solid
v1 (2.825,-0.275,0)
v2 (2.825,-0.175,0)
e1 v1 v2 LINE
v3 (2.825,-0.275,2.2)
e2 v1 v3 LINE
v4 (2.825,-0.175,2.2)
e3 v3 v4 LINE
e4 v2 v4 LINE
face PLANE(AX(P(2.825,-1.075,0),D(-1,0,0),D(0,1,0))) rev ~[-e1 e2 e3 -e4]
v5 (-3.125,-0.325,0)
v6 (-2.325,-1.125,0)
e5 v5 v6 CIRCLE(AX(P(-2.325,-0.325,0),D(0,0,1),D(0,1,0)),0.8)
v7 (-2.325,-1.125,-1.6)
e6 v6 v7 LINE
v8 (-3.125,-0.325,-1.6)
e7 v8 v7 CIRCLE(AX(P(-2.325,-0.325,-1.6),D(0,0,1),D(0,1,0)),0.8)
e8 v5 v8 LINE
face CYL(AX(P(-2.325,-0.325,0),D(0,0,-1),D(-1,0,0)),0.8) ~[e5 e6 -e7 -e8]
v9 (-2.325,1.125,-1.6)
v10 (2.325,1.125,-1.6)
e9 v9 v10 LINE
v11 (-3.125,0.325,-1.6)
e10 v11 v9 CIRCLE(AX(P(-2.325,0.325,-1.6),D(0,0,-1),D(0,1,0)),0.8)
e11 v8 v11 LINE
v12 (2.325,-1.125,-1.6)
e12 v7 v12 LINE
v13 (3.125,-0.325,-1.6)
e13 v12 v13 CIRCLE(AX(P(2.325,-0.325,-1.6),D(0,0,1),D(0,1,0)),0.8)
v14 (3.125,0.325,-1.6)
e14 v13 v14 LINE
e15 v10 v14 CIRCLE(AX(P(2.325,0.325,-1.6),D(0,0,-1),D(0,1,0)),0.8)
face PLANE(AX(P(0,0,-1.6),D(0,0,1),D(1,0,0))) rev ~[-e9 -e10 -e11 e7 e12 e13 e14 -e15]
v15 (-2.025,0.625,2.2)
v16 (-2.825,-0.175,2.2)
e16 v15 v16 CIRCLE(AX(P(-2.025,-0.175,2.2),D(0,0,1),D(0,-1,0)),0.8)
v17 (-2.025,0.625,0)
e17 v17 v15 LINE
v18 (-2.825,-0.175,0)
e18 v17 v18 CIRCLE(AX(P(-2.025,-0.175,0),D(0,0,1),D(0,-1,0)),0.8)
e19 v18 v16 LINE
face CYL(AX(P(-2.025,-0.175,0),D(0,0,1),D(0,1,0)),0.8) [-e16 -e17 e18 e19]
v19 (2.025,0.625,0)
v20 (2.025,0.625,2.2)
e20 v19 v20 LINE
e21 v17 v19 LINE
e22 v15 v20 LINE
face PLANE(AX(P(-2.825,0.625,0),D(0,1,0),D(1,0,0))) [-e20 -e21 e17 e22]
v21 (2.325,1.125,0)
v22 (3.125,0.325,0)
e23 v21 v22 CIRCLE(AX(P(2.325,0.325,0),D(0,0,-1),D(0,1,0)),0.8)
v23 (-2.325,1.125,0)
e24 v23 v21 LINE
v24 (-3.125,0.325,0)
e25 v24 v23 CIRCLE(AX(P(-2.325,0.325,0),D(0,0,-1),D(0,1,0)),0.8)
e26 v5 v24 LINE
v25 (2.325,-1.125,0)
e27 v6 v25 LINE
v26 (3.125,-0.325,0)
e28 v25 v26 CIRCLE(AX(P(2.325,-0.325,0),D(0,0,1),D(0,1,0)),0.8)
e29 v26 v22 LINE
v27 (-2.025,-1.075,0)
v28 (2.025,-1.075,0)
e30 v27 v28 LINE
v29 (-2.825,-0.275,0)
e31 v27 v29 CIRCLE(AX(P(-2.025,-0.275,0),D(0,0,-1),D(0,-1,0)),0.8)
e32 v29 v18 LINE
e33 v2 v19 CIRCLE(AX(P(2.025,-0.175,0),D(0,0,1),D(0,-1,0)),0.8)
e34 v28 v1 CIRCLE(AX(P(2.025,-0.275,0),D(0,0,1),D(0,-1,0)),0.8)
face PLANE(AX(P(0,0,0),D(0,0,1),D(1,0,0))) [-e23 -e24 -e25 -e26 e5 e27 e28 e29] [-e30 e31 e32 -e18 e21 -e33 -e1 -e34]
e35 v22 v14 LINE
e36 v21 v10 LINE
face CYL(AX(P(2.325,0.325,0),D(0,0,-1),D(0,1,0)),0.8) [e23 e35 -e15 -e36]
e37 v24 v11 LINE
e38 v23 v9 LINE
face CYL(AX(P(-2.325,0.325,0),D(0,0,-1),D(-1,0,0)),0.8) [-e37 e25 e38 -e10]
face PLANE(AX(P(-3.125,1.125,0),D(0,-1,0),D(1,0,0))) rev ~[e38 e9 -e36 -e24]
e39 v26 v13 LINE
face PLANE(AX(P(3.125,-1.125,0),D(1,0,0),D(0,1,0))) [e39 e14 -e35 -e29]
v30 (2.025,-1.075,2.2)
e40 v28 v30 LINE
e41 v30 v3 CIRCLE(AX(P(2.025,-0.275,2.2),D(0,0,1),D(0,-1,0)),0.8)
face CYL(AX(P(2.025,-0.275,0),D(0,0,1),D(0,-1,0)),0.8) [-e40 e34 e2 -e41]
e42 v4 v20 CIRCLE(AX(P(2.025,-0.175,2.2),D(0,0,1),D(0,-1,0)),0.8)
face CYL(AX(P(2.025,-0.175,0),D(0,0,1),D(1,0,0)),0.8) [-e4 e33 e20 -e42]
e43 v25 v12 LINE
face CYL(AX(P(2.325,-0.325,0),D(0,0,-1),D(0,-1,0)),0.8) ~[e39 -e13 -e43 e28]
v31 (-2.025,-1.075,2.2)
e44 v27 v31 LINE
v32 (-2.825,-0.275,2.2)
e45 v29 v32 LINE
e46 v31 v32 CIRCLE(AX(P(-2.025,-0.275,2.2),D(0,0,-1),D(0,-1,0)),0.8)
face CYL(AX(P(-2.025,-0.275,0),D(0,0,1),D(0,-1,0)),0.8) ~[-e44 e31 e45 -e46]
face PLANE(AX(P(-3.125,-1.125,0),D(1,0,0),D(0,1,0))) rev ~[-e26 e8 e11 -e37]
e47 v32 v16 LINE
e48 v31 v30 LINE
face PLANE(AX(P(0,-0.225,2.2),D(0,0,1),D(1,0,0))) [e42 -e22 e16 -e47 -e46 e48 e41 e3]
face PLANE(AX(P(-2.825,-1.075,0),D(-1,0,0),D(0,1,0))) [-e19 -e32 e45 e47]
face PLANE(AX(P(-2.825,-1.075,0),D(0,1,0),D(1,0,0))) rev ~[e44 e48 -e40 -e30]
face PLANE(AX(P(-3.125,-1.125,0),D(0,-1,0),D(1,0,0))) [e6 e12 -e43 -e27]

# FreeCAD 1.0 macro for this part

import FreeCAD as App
import Part
import Sketcher

V = App.Vector
Q = App.Units.Quantity


def edges_at(feature, points):
    """Names of the edges that pass closest to the given points."""
    edges = feature.Shape.Edges
    near = lambda p: min(range(len(edges)), key=lambda i: edges[i].distToShape(Part.Vertex(*p))[0])
    return sorted({f"Edge{near(p) + 1}" for p in points})

doc = App.newDocument("Part")
params = doc.addObject("Spreadsheet::Sheet", "Params")
for row, (alias, value) in enumerate([
    ("sketch1_height", "1.7 mm"),
    ("sketch1_width", "5.65 mm"),
    ("pad1_length", "2.2 mm"),
    ("sketch2_width", "6.25 mm"),
    ("sketch2_height", "2.25 mm"),
    ("pad2_length", "1.6 mm"),
    ("fillet_radius", "0.8 mm"),
], start=1):
    params.set(f"A{row}", alias)
    params.set(f"B{row}", "=" + value)
    params.setAlias(f"B{row}", alias)

body = doc.addObject("PartDesign::Body", "Body")

# Sketch on XY plane
sketch1 = body.newObject("Sketcher::SketchObject", "Sketch")
sketch1.AttachmentSupport = (doc.getObject("XY_Plane"), [""])
sketch1.MapMode = "FlatFace"
sketch1.addGeometry(Part.LineSegment(V(-2.8, 0.6, 0), V(-2.8, -1.1, 0)), False)
sketch1.addGeometry(Part.LineSegment(V(-2.8, -1.1, 0), V(2.8, -1.1, 0)), False)
sketch1.addGeometry(Part.LineSegment(V(2.8, -1.1, 0), V(2.8, 0.6, 0)), False)
sketch1.addGeometry(Part.LineSegment(V(2.8, 0.6, 0), V(-2.8, 0.6, 0)), False)
sketch1.addConstraint(Sketcher.Constraint("Coincident", 0, 2, 1, 1))
sketch1.addConstraint(Sketcher.Constraint("Coincident", 1, 2, 2, 1))
sketch1.addConstraint(Sketcher.Constraint("Coincident", 2, 2, 3, 1))
sketch1.addConstraint(Sketcher.Constraint("Coincident", 3, 2, 0, 1))
sketch1.addConstraint(Sketcher.Constraint("Vertical", 0))
sketch1.addConstraint(Sketcher.Constraint("Horizontal", 1))
sketch1.addConstraint(Sketcher.Constraint("Vertical", 2))
sketch1.addConstraint(Sketcher.Constraint("Horizontal", 3))
sketch1.addConstraint(Sketcher.Constraint("DistanceY", 0, 2, 0, 1, Q("1.7 mm")))
sketch1.addConstraint(Sketcher.Constraint("DistanceX", 1, 1, 1, 2, Q("5.65 mm")))
sketch1.addConstraint(Sketcher.Constraint("DistanceX", 0, 2, -1, 1, Q("2.825 mm")))
sketch1.addConstraint(Sketcher.Constraint("DistanceY", 0, 2, -1, 1, Q("1.075 mm")))
sketch1.setExpression("Constraints[8]", "Params.sketch1_height")
sketch1.setExpression("Constraints[9]", "Params.sketch1_width")
pad1 = body.newObject("PartDesign::Pad", "Pad")
pad1.Profile = sketch1
pad1.setExpression("Length", "Params.pad1_length")

# Sketch on XY plane
sketch2 = body.newObject("Sketcher::SketchObject", "Sketch001")
sketch2.AttachmentSupport = (doc.getObject("XY_Plane"), [""])
sketch2.MapMode = "FlatFace"
sketch2.addGeometry(Part.LineSegment(V(-3.1, 1.1, 0), V(-3.1, -1.1, 0)), False)
sketch2.addGeometry(Part.LineSegment(V(-3.1, -1.1, 0), V(3.1, -1.1, 0)), False)
sketch2.addGeometry(Part.LineSegment(V(3.1, -1.1, 0), V(3.1, 1.1, 0)), False)
sketch2.addGeometry(Part.LineSegment(V(3.1, 1.1, 0), V(-3.1, 1.1, 0)), False)
sketch2.addConstraint(Sketcher.Constraint("Coincident", 0, 2, 1, 1))
sketch2.addConstraint(Sketcher.Constraint("Coincident", 1, 2, 2, 1))
sketch2.addConstraint(Sketcher.Constraint("Coincident", 2, 2, 3, 1))
sketch2.addConstraint(Sketcher.Constraint("Coincident", 3, 2, 0, 1))
sketch2.addConstraint(Sketcher.Constraint("Vertical", 0))
sketch2.addConstraint(Sketcher.Constraint("Horizontal", 1))
sketch2.addConstraint(Sketcher.Constraint("Vertical", 2))
sketch2.addConstraint(Sketcher.Constraint("Horizontal", 3))
sketch2.addConstraint(Sketcher.Constraint("Symmetric", 0, 2, 2, 2, -1, 1))
sketch2.addConstraint(Sketcher.Constraint("DistanceX", 1, 1, 1, 2, Q("6.25 mm")))
sketch2.addConstraint(Sketcher.Constraint("DistanceY", 0, 2, 0, 1, Q("2.25 mm")))
sketch2.setExpression("Constraints[9]", "Params.sketch2_width")
sketch2.setExpression("Constraints[10]", "Params.sketch2_height")
pad2 = body.newObject("PartDesign::Pad", "Pad001")
pad2.Profile = sketch2
pad2.setExpression("Length", "Params.pad2_length")
pad2.Reversed = True
doc.recompute()

fillet = body.newObject("PartDesign::Fillet", "Fillet")
fillet.Base = (pad2, edges_at(pad2, [
    (3.125, 1.125, -0.8),
    (-3.125, 1.125, -0.8),
    (2.825, 0.625, 1.1),
    (-2.825, 0.625, 1.1),
    (3.125, -1.125, -0.8),
    (-3.125, -1.125, -0.8),
    (-2.825, -1.075, 1.1),
    (2.825, -1.075, 1.1),
]))
fillet.setExpression("Radius", "Params.fillet_radius")

doc.recompute()
